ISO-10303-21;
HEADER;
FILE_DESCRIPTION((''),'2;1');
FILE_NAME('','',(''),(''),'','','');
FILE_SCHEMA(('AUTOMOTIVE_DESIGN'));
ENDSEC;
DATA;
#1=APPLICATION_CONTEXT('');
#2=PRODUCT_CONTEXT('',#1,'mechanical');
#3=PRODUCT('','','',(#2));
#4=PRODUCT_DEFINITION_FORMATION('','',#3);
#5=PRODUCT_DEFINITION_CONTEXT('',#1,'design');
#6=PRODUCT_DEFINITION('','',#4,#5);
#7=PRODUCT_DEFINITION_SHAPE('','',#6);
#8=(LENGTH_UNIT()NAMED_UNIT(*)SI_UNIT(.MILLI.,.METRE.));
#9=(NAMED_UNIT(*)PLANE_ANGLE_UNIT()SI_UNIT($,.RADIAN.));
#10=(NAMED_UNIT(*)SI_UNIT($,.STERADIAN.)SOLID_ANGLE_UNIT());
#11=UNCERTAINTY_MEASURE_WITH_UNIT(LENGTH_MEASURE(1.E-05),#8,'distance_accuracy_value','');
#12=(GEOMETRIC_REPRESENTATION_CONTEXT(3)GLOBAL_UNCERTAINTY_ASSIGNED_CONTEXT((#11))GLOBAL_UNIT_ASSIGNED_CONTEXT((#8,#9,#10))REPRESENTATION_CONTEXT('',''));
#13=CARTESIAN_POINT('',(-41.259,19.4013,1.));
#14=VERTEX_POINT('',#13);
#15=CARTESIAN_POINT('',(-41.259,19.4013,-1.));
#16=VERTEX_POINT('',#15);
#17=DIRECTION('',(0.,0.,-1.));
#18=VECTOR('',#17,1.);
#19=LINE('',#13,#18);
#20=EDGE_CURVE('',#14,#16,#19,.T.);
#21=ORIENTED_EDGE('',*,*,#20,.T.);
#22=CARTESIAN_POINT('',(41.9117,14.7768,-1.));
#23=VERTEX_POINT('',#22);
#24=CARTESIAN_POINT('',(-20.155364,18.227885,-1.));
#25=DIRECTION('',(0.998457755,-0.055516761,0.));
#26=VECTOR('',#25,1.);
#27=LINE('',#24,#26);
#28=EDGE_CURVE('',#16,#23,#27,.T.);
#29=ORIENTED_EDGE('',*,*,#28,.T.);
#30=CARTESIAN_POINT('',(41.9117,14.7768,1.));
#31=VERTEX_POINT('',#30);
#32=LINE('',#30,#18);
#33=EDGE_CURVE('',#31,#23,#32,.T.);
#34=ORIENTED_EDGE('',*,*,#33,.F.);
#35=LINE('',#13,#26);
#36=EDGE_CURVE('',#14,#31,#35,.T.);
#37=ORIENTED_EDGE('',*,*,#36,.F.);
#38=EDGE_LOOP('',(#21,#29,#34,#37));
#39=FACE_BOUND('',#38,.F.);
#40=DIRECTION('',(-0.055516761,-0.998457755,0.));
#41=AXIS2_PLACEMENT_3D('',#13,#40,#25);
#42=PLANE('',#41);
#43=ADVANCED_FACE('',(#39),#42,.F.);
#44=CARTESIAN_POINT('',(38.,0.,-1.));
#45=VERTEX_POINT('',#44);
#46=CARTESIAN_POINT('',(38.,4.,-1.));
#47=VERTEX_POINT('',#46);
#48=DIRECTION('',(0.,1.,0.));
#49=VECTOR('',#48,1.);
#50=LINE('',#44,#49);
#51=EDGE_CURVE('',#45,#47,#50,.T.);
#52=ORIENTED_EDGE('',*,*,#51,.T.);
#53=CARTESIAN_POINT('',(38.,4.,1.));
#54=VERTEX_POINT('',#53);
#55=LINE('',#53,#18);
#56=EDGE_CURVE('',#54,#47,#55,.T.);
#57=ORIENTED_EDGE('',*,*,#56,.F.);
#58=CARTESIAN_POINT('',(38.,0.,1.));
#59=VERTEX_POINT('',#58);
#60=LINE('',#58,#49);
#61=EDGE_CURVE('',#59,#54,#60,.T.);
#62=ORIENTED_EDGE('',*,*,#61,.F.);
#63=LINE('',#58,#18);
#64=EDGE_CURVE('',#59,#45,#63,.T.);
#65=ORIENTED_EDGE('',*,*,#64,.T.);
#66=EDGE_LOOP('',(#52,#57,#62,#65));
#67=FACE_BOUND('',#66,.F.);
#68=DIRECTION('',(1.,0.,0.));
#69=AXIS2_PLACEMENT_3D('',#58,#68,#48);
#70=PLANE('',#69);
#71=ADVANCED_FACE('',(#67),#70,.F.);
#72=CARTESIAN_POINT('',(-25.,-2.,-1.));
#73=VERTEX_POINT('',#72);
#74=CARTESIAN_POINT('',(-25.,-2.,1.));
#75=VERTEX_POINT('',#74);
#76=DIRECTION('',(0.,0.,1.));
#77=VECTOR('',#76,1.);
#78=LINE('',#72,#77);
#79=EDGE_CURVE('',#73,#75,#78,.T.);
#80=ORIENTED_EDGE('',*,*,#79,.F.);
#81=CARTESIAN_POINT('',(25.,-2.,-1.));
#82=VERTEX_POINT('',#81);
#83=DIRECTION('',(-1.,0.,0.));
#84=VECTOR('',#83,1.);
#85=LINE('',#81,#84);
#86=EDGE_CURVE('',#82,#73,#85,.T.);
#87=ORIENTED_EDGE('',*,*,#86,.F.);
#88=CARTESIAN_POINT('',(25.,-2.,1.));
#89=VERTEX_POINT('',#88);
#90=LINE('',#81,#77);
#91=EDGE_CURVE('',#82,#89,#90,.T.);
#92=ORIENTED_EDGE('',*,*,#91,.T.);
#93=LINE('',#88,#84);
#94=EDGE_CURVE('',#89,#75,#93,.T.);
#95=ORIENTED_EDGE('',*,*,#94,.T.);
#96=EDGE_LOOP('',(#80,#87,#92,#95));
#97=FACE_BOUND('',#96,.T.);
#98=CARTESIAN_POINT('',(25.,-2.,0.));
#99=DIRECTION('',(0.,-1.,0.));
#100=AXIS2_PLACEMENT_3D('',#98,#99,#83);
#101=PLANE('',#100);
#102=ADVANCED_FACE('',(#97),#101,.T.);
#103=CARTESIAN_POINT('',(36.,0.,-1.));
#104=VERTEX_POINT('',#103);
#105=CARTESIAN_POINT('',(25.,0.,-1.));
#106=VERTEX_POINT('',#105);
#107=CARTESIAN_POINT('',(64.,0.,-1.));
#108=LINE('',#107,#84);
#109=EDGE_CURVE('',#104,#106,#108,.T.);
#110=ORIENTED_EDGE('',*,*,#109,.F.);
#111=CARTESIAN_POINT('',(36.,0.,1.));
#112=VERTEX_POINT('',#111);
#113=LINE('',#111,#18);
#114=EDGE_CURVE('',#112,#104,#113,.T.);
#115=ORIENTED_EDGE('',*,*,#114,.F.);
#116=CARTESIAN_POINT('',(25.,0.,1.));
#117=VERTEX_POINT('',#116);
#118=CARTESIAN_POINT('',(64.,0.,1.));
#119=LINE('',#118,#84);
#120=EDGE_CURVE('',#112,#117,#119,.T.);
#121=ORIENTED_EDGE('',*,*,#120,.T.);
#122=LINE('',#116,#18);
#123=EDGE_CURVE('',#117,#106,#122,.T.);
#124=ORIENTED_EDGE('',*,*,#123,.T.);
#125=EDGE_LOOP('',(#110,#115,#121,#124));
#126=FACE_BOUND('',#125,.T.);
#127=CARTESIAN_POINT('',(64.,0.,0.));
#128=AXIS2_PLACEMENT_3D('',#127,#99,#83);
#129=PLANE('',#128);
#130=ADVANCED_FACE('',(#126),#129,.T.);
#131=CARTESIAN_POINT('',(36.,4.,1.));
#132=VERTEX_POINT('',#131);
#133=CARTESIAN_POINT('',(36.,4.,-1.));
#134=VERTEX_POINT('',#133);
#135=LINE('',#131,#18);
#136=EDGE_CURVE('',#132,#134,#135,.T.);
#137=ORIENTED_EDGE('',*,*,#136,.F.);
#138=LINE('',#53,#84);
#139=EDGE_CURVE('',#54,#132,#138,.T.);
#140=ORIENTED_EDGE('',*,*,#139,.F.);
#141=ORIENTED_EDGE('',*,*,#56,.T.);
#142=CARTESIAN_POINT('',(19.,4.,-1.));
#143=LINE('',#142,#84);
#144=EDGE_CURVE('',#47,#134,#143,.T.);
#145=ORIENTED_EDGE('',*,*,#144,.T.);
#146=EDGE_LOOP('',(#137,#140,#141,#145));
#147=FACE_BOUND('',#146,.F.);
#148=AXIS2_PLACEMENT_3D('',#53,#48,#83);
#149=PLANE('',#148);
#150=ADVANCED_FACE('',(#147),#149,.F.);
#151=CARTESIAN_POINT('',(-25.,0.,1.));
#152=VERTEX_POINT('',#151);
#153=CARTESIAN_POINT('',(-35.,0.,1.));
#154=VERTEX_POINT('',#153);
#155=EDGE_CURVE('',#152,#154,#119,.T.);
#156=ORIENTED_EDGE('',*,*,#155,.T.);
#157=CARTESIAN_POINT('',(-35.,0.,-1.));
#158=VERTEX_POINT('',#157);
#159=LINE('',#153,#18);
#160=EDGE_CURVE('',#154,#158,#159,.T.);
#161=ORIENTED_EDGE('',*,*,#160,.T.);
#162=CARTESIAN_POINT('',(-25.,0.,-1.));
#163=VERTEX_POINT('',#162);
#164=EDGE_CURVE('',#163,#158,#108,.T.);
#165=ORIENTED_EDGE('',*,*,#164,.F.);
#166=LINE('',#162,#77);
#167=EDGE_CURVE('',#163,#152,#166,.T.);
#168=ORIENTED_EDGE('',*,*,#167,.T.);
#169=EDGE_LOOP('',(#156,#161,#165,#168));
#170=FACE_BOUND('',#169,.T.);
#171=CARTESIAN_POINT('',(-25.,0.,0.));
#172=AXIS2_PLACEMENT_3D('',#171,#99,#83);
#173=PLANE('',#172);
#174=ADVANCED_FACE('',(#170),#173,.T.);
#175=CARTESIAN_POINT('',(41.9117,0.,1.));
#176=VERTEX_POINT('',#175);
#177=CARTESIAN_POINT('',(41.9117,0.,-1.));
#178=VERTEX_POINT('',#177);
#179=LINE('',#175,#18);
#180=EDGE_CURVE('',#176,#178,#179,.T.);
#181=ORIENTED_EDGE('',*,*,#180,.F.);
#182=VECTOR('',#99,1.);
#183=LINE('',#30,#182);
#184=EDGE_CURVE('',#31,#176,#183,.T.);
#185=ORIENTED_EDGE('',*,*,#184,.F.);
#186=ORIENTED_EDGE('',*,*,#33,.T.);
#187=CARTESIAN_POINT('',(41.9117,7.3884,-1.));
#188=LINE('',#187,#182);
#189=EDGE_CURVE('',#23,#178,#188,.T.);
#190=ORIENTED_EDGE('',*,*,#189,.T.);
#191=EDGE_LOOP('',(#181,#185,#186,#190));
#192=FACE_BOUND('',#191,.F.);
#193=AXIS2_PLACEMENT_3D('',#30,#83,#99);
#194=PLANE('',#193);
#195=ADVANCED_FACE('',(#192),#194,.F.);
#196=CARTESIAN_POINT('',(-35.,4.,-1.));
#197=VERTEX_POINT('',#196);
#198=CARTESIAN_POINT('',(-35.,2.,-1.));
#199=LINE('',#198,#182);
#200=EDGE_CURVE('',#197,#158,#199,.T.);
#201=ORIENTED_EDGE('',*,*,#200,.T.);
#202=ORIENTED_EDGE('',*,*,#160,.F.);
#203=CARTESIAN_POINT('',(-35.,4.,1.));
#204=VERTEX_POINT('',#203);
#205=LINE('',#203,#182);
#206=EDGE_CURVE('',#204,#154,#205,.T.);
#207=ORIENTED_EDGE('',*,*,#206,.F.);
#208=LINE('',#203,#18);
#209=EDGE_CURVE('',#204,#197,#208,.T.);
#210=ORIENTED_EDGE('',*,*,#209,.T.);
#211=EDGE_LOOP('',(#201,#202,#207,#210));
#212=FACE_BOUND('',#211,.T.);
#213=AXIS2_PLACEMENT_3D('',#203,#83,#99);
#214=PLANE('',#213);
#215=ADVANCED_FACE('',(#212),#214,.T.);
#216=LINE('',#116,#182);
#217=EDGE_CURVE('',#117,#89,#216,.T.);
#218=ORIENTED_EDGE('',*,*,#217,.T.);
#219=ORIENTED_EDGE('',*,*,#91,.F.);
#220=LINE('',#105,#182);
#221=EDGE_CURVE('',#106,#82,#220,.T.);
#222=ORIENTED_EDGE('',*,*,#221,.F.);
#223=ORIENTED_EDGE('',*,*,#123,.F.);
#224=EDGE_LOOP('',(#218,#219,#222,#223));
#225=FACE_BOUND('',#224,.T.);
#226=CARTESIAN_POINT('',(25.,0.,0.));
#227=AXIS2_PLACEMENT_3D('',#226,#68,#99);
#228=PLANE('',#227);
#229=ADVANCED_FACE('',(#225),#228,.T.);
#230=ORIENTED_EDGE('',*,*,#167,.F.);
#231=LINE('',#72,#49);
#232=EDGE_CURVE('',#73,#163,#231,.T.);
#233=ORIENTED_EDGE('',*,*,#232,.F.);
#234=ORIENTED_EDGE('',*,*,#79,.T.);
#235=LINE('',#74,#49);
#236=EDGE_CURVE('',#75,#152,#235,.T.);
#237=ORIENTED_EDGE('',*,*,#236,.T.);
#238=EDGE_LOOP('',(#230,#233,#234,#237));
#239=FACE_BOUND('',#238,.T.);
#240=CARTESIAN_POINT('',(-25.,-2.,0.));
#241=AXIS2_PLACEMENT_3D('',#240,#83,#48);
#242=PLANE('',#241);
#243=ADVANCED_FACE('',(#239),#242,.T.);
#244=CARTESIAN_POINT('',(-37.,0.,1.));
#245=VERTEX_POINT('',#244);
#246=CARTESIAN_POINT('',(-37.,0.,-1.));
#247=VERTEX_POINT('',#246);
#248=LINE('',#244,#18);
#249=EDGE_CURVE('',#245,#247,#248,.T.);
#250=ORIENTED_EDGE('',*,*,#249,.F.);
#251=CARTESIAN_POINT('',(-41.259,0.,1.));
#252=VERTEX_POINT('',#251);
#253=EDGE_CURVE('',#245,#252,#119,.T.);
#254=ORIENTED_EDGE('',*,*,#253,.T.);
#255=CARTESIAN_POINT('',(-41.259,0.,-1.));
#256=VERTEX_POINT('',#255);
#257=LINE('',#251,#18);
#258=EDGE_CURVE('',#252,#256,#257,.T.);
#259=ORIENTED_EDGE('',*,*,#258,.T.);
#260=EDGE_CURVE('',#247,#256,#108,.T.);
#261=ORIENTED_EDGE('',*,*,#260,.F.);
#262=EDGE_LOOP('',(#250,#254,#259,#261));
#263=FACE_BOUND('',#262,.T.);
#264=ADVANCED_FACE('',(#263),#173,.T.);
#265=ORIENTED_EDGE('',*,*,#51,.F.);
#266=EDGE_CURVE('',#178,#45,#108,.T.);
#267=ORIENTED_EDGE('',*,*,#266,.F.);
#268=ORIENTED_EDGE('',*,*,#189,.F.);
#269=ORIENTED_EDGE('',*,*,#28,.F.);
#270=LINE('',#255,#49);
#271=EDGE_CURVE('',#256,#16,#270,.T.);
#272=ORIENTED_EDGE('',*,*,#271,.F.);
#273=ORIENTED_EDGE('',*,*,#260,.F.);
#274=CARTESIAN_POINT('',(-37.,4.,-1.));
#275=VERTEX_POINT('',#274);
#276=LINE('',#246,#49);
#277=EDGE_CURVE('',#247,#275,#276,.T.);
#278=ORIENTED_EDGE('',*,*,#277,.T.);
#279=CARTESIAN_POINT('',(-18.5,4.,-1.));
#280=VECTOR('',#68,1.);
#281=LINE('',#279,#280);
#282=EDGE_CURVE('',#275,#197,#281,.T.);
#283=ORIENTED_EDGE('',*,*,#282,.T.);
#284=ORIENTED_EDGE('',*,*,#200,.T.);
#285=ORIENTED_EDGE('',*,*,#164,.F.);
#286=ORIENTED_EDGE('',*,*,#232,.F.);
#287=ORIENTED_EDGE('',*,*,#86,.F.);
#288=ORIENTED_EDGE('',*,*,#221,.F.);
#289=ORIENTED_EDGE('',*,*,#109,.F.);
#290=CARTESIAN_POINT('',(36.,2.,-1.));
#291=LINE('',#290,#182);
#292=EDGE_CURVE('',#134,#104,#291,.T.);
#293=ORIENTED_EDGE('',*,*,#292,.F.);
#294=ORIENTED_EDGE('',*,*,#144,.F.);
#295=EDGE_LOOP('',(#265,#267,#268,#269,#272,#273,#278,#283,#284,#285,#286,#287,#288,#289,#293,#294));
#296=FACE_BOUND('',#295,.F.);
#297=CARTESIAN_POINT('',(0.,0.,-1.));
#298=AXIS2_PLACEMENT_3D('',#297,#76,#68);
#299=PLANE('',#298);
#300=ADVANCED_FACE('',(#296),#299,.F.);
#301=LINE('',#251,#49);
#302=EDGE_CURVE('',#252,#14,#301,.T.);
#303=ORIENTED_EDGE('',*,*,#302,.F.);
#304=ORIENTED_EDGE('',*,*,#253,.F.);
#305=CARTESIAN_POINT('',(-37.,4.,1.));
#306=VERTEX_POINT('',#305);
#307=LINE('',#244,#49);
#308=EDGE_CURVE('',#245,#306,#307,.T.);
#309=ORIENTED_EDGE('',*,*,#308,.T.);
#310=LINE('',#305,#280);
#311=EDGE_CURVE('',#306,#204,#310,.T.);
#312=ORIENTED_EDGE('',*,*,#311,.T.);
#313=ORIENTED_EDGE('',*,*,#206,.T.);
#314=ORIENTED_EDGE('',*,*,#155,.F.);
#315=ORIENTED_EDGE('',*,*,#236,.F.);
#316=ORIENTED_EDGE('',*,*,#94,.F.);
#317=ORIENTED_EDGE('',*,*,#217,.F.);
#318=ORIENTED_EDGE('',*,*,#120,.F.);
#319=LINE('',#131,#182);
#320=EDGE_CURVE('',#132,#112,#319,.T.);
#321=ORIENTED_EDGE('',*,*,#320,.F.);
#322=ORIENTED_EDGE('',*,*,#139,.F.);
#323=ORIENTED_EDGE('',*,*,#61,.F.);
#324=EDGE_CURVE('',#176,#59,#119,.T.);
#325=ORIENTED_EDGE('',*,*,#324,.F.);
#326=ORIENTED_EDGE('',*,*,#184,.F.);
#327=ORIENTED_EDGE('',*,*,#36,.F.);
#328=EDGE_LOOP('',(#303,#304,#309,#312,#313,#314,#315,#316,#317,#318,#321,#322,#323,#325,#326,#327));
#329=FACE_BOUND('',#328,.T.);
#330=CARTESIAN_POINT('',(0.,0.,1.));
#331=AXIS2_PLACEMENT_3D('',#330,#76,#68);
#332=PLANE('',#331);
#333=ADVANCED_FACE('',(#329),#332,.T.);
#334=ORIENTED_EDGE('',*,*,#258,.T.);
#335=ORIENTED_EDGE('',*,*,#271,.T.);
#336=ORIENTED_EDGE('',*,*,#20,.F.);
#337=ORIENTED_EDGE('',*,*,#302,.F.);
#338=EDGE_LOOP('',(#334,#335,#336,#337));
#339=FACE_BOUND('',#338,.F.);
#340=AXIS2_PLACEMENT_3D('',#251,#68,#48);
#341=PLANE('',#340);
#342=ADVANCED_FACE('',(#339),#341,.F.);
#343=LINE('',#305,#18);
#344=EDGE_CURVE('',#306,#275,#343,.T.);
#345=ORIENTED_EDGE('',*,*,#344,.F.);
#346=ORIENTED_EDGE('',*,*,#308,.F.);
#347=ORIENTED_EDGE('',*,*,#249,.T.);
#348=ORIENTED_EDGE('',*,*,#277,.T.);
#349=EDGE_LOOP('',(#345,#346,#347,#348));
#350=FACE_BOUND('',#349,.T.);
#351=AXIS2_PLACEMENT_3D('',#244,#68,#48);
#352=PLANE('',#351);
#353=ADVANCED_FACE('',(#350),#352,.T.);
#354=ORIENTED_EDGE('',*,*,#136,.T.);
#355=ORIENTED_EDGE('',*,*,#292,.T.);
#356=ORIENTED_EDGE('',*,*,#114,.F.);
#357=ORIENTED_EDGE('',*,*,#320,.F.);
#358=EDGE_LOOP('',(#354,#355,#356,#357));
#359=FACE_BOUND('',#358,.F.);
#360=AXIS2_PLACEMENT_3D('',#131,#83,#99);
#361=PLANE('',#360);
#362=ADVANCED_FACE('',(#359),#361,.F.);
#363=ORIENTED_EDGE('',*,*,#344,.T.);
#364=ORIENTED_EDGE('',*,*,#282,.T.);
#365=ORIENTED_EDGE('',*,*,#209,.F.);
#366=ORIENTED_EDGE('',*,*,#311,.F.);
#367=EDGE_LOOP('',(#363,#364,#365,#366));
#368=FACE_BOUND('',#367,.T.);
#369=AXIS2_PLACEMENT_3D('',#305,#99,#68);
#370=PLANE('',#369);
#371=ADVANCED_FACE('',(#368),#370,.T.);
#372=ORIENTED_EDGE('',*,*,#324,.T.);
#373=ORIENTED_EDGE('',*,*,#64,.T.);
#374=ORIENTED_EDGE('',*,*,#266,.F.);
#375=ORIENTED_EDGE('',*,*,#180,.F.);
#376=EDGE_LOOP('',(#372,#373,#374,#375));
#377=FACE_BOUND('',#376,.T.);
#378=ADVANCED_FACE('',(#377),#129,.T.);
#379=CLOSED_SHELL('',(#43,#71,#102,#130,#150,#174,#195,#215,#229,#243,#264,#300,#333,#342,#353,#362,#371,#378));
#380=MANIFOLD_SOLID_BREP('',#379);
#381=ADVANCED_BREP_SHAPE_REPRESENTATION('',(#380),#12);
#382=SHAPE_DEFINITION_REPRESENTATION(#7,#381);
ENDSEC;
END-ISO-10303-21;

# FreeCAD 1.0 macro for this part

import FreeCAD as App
import Part
import Sketcher


def add_polygon(sketch, points):
    """Adds a closed chain of lines whose ends are joined by coincident constraints."""
    first, n = sketch.GeometryCount, len(points)
    for a, b in zip(points, points[1:] + points[:1]):
        sketch.addGeometry(Part.LineSegment(App.Vector(*a, 0), App.Vector(*b, 0)), False)
    for i in range(n):
        sketch.addConstraint(Sketcher.Constraint("Coincident", first + i, 2, first + (i + 1) % n, 1))

doc = App.newDocument("Part")
body = doc.addObject("PartDesign::Body", "Body")

sketch1 = doc.addObject("Sketcher::SketchObject", "Sketch")
body.addObject(sketch1)
sketch1.AttachmentSupport = (doc.XY_Plane, [""])
sketch1.MapMode = "FlatFace"
add_polygon(sketch1, [(64, 50), (-64, 50), (-64, 0), (-25, 0), (-25, -2), (25, -2), (25, 0), (64, 0)])
sketch1.addConstraint(Sketcher.Constraint("Horizontal", 0))
sketch1.addConstraint(Sketcher.Constraint("Vertical", 1))
sketch1.addConstraint(Sketcher.Constraint("Horizontal", 2))
sketch1.addConstraint(Sketcher.Constraint("Vertical", 3))
sketch1.addConstraint(Sketcher.Constraint("Horizontal", 4))
sketch1.addConstraint(Sketcher.Constraint("Vertical", 5))
sketch1.addConstraint(Sketcher.Constraint("Horizontal", 6))
sketch1.addConstraint(Sketcher.Constraint("Vertical", 7))
sketch1.addConstraint(Sketcher.Constraint("Symmetric", 2, 2, 5, 2, -1, 1))
sketch1.addConstraint(Sketcher.Constraint("Symmetric", 1, 2, 6, 2, -2))
sketch1.addConstraint(Sketcher.Constraint("Equal", 4, 1))
sketch1.addConstraint(Sketcher.Constraint("DistanceX", 0, 2, 0, 1, 128.0))
sketch1.addConstraint(Sketcher.Constraint("DistanceX", 4, 1, 4, 2, 50.0))
sketch1.addConstraint(Sketcher.Constraint("DistanceY", 3, 2, 3, 1, 2.0))
pad1 = doc.addObject("PartDesign::Pad", "Pad")
body.addObject(pad1)
pad1.Profile = sketch1
pad1.Length = 2
pad1.Midplane = True

sketch2 = doc.addObject("Sketcher::SketchObject", "Sketch001")
body.addObject(sketch2)
sketch2.AttachmentSupport = (doc.XY_Plane, [""])
sketch2.MapMode = "FlatFace"
sketch2.AttachmentOffset = App.Placement(App.Vector(0, 0, 1), App.Rotation())
add_polygon(sketch2, [(-41, 0), (-41, 19), (42, 15), (42, 0), (92, 0), (92, 60), (-91, 60), (-91, 0)])
sketch2.addConstraint(Sketcher.Constraint("Vertical", 0))
sketch2.addConstraint(Sketcher.Constraint("Vertical", 2))
sketch2.addConstraint(Sketcher.Constraint("Horizontal", 3))
sketch2.addConstraint(Sketcher.Constraint("Vertical", 4))
sketch2.addConstraint(Sketcher.Constraint("Horizontal", 5))
sketch2.addConstraint(Sketcher.Constraint("Vertical", 6))
sketch2.addConstraint(Sketcher.Constraint("Horizontal", 7))
sketch2.addConstraint(Sketcher.Constraint("PointOnObject", 2, 2, -1))
sketch2.addConstraint(Sketcher.Constraint("PointOnObject", 6, 2, -1))
sketch2.addConstraint(Sketcher.Constraint("Equal", 3, 7))
sketch2.addConstraint(Sketcher.Constraint("DistanceX", 3, 1, 3, 2, 50.0))
sketch2.addConstraint(Sketcher.Constraint("DistanceY", 4, 1, 4, 2, 60.0))
sketch2.addConstraint(Sketcher.Constraint("DistanceX", 5, 2, 5, 1, 183.1707))
sketch2.addConstraint(Sketcher.Constraint("DistanceY", 0, 1, 0, 2, 19.4013))
sketch2.addConstraint(Sketcher.Constraint("DistanceY", 2, 2, 2, 1, 14.7768))
sketch2.addConstraint(Sketcher.Constraint("DistanceX", 0, 2, -1, 1, 41.259))
pocket1 = doc.addObject("PartDesign::Pocket", "Pocket")
body.addObject(pocket1)
pocket1.Profile = sketch2
pocket1.Type = "ThroughAll"

sketch3 = doc.addObject("Sketcher::SketchObject", "Sketch002")
body.addObject(sketch3)
sketch3.AttachmentSupport = (doc.XY_Plane, [""])
sketch3.MapMode = "FlatFace"
sketch3.AttachmentOffset = App.Placement(App.Vector(0, 0, 1), App.Rotation())
add_polygon(sketch3, [(-35, 4), (-37, 4), (-37, 0), (-35, 0)])
add_polygon(sketch3, [(38, 0), (38, 4), (36, 4), (36, 0)])
sketch3.addConstraint(Sketcher.Constraint("Horizontal", 0))
sketch3.addConstraint(Sketcher.Constraint("Vertical", 1))
sketch3.addConstraint(Sketcher.Constraint("Horizontal", 2))
sketch3.addConstraint(Sketcher.Constraint("Vertical", 3))
sketch3.addConstraint(Sketcher.Constraint("Vertical", 4))
sketch3.addConstraint(Sketcher.Constraint("Horizontal", 5))
sketch3.addConstraint(Sketcher.Constraint("Vertical", 6))
sketch3.addConstraint(Sketcher.Constraint("Horizontal", 7))
sketch3.addConstraint(Sketcher.Constraint("PointOnObject", 1, 2, -1))
sketch3.addConstraint(Sketcher.Constraint("PointOnObject", 6, 2, -1))
sketch3.addConstraint(Sketcher.Constraint("Horizontal", 3, 2, 4, 2))
sketch3.addConstraint(Sketcher.Constraint("Equal", 2, 5))
sketch3.addConstraint(Sketcher.Constraint("DistanceY", 1, 2, 1, 1, 4.0))
sketch3.addConstraint(Sketcher.Constraint("DistanceX", 0, 2, 0, 1, 2.0))
sketch3.addConstraint(Sketcher.Constraint("DistanceX", 0, 2, -1, 1, 37.0))
sketch3.addConstraint(Sketcher.Constraint("DistanceX", -1, 1, 4, 2, 38.0))
pocket2 = doc.addObject("PartDesign::Pocket", "Pocket001")
body.addObject(pocket2)
pocket2.Profile = sketch3
pocket2.Type = "ThroughAll"

doc.recompute()
